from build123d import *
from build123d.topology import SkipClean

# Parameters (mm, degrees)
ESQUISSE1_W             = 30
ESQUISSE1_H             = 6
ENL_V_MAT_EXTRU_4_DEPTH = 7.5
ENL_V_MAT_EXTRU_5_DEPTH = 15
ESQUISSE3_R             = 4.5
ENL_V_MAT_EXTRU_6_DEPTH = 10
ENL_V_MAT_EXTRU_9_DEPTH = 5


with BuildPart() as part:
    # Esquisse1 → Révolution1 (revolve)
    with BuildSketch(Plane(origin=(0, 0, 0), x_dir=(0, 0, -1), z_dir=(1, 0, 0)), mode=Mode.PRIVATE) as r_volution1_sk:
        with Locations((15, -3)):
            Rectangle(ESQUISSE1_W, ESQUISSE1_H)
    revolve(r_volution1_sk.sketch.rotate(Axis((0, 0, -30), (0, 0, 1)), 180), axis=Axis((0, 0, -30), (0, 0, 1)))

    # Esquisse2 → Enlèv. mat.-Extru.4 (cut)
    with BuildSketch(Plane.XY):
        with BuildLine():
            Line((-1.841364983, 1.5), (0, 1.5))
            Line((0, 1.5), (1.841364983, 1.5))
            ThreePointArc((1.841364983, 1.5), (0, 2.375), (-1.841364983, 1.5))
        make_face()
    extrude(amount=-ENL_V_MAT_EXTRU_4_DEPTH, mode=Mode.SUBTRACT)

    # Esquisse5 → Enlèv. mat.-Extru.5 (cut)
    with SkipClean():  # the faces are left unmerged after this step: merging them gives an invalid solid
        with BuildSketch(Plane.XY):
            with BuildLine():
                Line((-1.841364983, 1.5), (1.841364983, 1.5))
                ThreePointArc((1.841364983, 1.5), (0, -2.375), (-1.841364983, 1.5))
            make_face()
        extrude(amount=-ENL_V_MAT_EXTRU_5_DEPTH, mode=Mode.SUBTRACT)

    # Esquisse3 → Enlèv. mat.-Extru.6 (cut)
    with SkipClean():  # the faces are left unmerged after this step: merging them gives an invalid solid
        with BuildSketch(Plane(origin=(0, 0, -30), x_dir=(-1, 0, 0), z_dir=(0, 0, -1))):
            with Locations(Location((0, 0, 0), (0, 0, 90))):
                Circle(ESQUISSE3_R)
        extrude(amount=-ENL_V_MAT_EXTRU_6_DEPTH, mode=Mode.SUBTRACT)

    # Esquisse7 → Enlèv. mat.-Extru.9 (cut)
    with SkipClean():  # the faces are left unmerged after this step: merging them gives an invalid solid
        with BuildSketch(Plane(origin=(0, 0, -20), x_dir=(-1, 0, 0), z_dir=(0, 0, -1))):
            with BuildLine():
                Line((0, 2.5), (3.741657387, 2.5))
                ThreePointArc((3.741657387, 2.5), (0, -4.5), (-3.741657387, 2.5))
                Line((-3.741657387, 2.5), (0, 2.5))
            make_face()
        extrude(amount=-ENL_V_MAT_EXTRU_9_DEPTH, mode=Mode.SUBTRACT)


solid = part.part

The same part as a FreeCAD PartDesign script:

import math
import FreeCAD as App
import Part
import Sketcher
from FreeCAD import Vector


def add_polygon(sketch, points):
    """Adds a closed chain of lines whose ends are joined by coincident constraints."""
    first, n = sketch.GeometryCount, len(points)
    for a, b in zip(points, points[1:] + points[:1]):
        sketch.addGeometry(Part.LineSegment(App.Vector(*a, 0), App.Vector(*b, 0)), False)
    for i in range(n):
        sketch.addConstraint(Sketcher.Constraint("Coincident", first + i, 2, first + (i + 1) % n, 1))

doc = App.newDocument("Part")
body = doc.addObject("PartDesign::Body", "Body")

sketch1 = doc.addObject("Sketcher::SketchObject", "Sketch")
body.addObject(sketch1)
sketch1.AttachmentSupport = (doc.YZ_Plane, [""])
sketch1.MapMode = "FlatFace"
add_polygon(sketch1, [(0, 0), (-6, 0), (-6, -30), (0, -30)])
sketch1.addConstraint([
    Sketcher.Constraint("Horizontal", 0),
    Sketcher.Constraint("Vertical", 1),
    Sketcher.Constraint("Horizontal", 2),
    Sketcher.Constraint("Vertical", 3),
    Sketcher.Constraint("Coincident", 3, 2, -1, 1),
    Sketcher.Constraint("DistanceX", 0, 2, 0, 1, 6.0),
    Sketcher.Constraint("DistanceY", 1, 2, 1, 1, 30.0),
])
revolution = doc.addObject("PartDesign::Revolution", "Revolution")
body.addObject(revolution)
revolution.Profile = sketch1
revolution.ReferenceAxis = (sketch1, ["V_Axis"])
revolution.Angle = 360

sketch2 = doc.addObject("Sketcher::SketchObject", "Sketch001")
body.addObject(sketch2)
sketch2.AttachmentSupport = (doc.XY_Plane, [""])
sketch2.MapMode = "FlatFace"
sketch2.addGeometry([
    Part.LineSegment(Vector(-1.841365, 1.5, 0), Vector(1.841365, 1.5, 0)),
    Part.ArcOfCircle(Part.Circle(Vector(0, 0, 0), Vector(0, 0, 1), 2.375), math.radians(39.166711), math.radians(140.833289)),
], False)
sketch2.addConstraint([
    Sketcher.Constraint("Coincident", 0, 1, 1, 2),
    Sketcher.Constraint("Coincident", 1, 1, 0, 2),
    Sketcher.Constraint("Horizontal", 0),
    Sketcher.Constraint("Coincident", 1, 3, -1, 1),
    Sketcher.Constraint("Radius", 1, 2.375),
    Sketcher.Constraint("DistanceY", -1, 1, 0, 1, 1.5),
])
pocket1 = doc.addObject("PartDesign::Pocket", "Pocket")
body.addObject(pocket1)
pocket1.Profile = sketch2
pocket1.Length = 7.5

sketch3 = doc.addObject("Sketcher::SketchObject", "Sketch002")
body.addObject(sketch3)
sketch3.AttachmentSupport = (doc.XY_Plane, [""])
sketch3.MapMode = "FlatFace"
sketch3.addGeometry([
    Part.LineSegment(Vector(1.841365, 1.5, 0), Vector(-1.841365, 1.5, 0)),
    Part.ArcOfCircle(Part.Circle(Vector(0, 0, 0), Vector(0, 0, 1), 2.375), math.radians(140.833289), math.radians(399.166711)),
], False)
sketch3.addConstraint([
    Sketcher.Constraint("Coincident", 0, 1, 1, 2),
    Sketcher.Constraint("Coincident", 1, 1, 0, 2),
    Sketcher.Constraint("Horizontal", 0),
    Sketcher.Constraint("Coincident", 1, 3, -1, 1),
    Sketcher.Constraint("Radius", 1, 2.375),
    Sketcher.Constraint("DistanceY", -1, 1, 0, 1, 1.5),
])
pocket2 = doc.addObject("PartDesign::Pocket", "Pocket001")
body.addObject(pocket2)
pocket2.Profile = sketch3
pocket2.Length = 15

sketch4 = doc.addObject("Sketcher::SketchObject", "Sketch003")
body.addObject(sketch4)
sketch4.AttachmentSupport = (doc.XY_Plane, [""])
sketch4.MapMode = "FlatFace"
sketch4.AttachmentOffset = App.Placement(Vector(0, 0, -30), App.Rotation())
sketch4.addGeometry(Part.Circle(Vector(0, 0, 0), Vector(0, 0, 1), 4.5), False)
sketch4.addConstraint([
    Sketcher.Constraint("Coincident", 0, 3, -1, 1),
    Sketcher.Constraint("Diameter", 0, 9.0),
])
pocket3 = doc.addObject("PartDesign::Pocket", "Pocket002")
body.addObject(pocket3)
pocket3.Profile = sketch4
pocket3.Length = 10
pocket3.Reversed = True

sketch5 = doc.addObject("Sketcher::SketchObject", "Sketch004")
body.addObject(sketch5)
sketch5.AttachmentSupport = (doc.XY_Plane, [""])
sketch5.MapMode = "FlatFace"
sketch5.AttachmentOffset = App.Placement(Vector(0, 0, -20), App.Rotation())
sketch5.addGeometry([
    Part.LineSegment(Vector(-3.741657, 2.5, 0), Vector(3.741657, 2.5, 0)),
    Part.ArcOfCircle(Part.Circle(Vector(0, 0, 0), Vector(0, 0, 1), 4.5), math.radians(146.251011), math.radians(393.748989)),
], False)
sketch5.addConstraint([
    Sketcher.Constraint("Coincident", 0, 1, 1, 1),
    Sketcher.Constraint("Coincident", 1, 2, 0, 2),
    Sketcher.Constraint("Horizontal", 0),
    Sketcher.Constraint("Coincident", 1, 3, -1, 1),
    Sketcher.Constraint("Radius", 1, 4.5),
    Sketcher.Constraint("DistanceY", -1, 1, 0, 1, 2.5),
])
pocket4 = doc.addObject("PartDesign::Pocket", "Pocket003")
body.addObject(pocket4)
pocket4.Profile = sketch5
pocket4.Length = 5
pocket4.Reversed = True

doc.recompute()
